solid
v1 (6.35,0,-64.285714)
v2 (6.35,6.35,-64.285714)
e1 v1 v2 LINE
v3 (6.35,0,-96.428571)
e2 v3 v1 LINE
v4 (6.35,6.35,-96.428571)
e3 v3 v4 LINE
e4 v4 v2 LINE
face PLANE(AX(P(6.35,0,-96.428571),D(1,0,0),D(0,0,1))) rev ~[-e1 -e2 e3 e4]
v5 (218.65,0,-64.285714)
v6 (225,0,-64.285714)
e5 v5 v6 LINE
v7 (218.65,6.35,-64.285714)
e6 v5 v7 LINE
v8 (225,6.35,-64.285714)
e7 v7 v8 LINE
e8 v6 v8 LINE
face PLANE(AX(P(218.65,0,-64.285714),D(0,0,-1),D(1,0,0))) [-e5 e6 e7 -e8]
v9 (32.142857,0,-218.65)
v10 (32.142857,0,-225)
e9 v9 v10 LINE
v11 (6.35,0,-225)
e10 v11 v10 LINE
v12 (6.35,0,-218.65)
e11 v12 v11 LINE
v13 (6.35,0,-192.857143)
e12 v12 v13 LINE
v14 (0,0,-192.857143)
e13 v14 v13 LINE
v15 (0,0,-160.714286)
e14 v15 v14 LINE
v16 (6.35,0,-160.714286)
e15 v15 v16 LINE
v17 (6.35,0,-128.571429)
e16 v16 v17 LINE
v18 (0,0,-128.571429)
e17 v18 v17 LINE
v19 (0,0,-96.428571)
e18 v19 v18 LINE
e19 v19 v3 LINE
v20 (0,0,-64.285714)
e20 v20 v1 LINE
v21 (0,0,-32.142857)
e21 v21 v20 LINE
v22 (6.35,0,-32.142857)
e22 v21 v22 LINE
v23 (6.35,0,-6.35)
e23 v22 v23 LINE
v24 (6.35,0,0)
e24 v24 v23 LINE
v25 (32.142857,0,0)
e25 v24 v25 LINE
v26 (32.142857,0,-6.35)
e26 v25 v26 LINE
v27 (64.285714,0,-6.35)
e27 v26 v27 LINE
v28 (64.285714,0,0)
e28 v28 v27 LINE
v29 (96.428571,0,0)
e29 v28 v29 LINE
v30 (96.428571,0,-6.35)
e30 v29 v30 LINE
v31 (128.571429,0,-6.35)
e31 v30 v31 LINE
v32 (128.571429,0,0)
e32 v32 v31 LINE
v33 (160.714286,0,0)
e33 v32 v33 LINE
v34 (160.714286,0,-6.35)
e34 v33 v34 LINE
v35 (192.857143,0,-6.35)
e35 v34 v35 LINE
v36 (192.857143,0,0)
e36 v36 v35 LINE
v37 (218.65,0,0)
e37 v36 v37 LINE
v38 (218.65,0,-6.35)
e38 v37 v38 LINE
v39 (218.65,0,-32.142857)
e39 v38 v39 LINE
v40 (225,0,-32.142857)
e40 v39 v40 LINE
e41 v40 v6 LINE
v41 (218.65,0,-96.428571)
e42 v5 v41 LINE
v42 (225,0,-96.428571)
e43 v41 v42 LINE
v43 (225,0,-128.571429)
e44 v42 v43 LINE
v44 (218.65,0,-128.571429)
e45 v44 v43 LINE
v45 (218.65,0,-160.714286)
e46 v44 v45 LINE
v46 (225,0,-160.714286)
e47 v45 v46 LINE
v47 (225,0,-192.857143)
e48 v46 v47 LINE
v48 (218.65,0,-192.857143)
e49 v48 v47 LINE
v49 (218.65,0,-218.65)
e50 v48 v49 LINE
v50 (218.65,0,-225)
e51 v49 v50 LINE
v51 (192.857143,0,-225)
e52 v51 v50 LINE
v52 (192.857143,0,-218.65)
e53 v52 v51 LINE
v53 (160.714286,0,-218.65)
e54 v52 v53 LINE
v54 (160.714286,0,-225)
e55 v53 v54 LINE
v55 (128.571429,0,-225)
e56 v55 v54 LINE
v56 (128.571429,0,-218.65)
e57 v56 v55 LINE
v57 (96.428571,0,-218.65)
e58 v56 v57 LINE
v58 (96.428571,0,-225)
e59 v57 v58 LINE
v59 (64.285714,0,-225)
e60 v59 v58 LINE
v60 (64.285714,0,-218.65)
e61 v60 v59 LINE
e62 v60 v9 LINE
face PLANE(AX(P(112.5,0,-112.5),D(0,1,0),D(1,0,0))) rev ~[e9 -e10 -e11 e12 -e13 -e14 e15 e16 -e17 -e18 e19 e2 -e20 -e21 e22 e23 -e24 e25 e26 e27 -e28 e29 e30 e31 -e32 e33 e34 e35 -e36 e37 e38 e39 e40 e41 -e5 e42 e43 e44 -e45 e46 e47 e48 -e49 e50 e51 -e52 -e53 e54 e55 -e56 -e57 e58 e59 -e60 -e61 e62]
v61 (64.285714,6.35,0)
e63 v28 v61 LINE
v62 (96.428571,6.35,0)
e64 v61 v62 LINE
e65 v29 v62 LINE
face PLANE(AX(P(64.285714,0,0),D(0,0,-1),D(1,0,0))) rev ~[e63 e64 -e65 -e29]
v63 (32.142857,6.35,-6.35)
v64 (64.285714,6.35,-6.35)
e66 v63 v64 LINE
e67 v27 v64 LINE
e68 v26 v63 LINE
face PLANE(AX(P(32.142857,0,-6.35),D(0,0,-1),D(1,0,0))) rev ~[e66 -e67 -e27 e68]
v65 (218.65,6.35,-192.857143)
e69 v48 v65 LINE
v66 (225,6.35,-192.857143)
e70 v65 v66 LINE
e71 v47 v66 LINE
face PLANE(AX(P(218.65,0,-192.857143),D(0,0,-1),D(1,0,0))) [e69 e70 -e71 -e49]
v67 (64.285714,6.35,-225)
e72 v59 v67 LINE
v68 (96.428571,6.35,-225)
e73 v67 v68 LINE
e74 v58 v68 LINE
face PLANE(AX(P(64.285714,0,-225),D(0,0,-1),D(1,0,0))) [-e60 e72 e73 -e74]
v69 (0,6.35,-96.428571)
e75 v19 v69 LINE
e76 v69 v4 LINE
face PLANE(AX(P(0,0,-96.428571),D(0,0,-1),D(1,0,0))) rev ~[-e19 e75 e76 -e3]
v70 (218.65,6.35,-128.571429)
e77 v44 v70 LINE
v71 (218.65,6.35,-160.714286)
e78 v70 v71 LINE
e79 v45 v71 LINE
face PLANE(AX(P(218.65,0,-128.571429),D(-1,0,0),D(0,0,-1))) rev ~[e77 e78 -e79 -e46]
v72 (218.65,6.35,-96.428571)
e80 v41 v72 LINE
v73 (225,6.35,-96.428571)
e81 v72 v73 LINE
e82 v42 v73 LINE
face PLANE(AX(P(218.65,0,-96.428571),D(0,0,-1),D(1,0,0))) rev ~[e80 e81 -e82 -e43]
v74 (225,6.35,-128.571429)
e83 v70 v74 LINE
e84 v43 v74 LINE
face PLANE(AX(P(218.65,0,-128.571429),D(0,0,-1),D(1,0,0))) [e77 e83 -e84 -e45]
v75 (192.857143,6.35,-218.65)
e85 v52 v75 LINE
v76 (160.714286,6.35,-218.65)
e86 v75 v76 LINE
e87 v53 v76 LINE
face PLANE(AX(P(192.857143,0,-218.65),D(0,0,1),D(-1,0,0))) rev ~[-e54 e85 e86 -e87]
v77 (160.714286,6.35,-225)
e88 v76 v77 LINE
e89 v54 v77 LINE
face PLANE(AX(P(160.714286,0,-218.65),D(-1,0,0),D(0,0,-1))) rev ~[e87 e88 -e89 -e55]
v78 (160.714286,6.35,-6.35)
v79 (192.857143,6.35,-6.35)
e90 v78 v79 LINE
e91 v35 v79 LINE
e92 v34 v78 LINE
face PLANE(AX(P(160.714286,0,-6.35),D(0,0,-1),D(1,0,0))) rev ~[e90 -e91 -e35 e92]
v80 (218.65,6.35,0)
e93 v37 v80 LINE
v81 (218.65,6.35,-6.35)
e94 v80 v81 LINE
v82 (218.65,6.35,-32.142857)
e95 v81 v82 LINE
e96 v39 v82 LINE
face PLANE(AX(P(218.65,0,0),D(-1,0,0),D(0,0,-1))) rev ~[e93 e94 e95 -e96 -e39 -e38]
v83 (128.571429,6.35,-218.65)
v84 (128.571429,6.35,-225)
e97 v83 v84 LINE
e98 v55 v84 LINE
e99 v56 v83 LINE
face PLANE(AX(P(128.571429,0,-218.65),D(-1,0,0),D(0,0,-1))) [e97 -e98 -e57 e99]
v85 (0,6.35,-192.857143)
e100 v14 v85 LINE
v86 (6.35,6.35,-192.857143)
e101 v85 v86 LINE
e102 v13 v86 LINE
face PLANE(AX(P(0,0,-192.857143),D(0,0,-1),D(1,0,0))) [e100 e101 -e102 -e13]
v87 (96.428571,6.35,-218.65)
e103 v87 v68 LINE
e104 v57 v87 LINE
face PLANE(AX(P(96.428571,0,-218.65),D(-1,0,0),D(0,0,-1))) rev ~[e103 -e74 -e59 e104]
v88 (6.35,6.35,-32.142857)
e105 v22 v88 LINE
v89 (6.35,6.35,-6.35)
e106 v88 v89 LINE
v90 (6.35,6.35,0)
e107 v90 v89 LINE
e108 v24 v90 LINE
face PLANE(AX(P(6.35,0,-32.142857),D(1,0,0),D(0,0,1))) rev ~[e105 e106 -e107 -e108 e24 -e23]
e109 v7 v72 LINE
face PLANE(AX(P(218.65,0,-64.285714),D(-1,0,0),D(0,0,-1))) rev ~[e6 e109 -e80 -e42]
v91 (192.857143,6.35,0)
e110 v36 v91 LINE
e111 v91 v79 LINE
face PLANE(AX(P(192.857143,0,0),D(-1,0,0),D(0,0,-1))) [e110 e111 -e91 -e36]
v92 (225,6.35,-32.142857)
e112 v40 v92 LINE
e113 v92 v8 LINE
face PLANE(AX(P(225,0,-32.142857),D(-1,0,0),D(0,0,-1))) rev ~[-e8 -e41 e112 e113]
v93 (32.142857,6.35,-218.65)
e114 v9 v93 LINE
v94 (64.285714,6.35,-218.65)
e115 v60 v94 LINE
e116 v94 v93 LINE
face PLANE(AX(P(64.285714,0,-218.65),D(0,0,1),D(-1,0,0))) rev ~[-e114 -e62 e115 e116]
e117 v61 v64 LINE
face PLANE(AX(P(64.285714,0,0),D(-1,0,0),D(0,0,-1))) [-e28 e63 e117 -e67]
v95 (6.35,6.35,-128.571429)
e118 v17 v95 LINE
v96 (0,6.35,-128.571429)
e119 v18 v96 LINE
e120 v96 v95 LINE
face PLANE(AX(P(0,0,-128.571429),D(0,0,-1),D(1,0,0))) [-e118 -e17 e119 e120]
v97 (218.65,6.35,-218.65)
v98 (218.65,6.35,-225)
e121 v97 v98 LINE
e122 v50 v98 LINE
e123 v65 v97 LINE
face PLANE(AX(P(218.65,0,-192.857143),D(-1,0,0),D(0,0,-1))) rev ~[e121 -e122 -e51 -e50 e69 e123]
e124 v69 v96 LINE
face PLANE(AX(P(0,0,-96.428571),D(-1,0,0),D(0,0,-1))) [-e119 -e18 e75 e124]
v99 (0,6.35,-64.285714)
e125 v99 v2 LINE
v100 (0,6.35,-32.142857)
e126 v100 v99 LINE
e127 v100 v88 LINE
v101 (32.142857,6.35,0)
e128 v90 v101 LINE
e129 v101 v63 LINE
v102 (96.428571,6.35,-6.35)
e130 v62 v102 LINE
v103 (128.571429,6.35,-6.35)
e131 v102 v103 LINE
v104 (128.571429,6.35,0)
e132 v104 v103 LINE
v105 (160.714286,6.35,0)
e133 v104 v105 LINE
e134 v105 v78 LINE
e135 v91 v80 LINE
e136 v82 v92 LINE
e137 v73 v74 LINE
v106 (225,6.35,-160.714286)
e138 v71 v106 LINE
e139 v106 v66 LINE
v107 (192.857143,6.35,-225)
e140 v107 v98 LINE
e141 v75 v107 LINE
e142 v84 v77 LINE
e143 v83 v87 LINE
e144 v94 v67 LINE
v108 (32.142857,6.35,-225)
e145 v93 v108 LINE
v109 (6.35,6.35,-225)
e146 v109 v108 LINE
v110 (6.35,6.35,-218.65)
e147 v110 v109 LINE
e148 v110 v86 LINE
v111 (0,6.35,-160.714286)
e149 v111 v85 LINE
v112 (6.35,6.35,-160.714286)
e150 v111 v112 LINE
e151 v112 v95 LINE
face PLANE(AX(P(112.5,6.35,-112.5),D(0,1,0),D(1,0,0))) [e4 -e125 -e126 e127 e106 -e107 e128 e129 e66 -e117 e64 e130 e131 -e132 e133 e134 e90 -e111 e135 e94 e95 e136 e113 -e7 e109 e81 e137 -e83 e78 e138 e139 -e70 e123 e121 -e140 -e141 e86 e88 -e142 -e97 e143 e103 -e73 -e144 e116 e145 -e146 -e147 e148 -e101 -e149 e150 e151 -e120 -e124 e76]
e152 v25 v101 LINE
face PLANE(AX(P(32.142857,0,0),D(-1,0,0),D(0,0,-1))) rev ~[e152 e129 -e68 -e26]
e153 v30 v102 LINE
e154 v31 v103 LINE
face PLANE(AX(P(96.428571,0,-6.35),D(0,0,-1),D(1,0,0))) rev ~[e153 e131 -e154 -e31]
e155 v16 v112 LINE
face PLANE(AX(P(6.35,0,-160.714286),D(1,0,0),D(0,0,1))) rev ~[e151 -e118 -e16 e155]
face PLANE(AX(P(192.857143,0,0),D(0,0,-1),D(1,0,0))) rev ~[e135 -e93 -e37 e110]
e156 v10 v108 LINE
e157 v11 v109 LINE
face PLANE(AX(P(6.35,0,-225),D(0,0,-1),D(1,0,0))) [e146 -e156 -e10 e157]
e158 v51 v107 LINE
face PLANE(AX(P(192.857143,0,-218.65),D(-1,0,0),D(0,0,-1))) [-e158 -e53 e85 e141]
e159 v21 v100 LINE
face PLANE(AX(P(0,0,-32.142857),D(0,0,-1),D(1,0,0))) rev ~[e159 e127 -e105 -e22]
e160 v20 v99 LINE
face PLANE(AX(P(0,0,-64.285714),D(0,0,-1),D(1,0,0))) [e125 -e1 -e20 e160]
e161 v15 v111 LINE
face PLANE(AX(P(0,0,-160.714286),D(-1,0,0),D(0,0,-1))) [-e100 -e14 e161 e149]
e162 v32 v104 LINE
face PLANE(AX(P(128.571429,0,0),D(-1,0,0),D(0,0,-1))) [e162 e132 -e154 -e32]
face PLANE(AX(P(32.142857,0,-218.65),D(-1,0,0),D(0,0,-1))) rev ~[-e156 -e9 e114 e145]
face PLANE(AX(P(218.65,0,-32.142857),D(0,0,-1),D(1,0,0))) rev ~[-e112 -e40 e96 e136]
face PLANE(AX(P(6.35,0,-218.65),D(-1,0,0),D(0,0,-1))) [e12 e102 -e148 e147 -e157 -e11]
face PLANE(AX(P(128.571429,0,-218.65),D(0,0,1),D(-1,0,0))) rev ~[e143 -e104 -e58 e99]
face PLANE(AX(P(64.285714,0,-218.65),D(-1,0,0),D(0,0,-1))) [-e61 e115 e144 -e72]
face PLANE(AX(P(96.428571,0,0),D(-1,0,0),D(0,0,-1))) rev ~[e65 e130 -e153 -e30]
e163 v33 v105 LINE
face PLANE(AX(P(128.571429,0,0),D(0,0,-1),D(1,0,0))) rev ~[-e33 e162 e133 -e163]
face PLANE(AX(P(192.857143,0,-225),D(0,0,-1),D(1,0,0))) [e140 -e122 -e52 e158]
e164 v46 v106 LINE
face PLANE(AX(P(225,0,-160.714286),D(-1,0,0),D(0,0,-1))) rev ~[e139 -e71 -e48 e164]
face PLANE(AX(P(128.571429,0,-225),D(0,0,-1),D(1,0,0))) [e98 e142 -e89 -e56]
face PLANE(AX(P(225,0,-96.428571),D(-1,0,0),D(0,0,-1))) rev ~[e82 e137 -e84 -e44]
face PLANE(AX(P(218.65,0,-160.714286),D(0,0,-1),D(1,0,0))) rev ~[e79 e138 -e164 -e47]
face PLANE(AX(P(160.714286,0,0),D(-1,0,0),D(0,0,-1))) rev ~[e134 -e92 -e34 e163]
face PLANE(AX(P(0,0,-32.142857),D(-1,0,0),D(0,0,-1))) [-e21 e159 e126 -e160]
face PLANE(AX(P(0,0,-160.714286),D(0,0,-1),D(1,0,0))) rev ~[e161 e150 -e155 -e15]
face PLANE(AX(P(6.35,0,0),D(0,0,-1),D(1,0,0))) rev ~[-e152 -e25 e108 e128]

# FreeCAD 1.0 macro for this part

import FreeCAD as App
import Part
import Sketcher
from FreeCAD import Vector
Q = App.Units.Quantity


def add_polygon(sketch, points):
    """Adds a closed chain of lines whose ends are joined by coincident constraints."""
    first, n = sketch.GeometryCount, len(points)
    for a, b in zip(points, points[1:] + points[:1]):
        sketch.addGeometry(Part.LineSegment(App.Vector(*a, 0), App.Vector(*b, 0)), False)
    for i in range(n):
        sketch.addConstraint(Sketcher.Constraint("Coincident", first + i, 2, first + (i + 1) % n, 1))

doc = App.newDocument("Part")
params = doc.addObject("Spreadsheet::Sheet", "Params")
for row, (alias, value) in enumerate([
    ("sketch1_width", "0.25 in"),
    ("pad1_length", "0.25 in"),
], start=1):
    params.set(f"A{row}", alias)
    params.set(f"B{row}", "=" + value)
    params.setAlias(f"B{row}", alias)

body = doc.addObject("PartDesign::Body", "Body")

# Sketch on XZ plane
sketch1 = doc.addObject("Sketcher::SketchObject", "Sketch")
body.addObject(sketch1)
sketch1.AttachmentSupport = (doc.XZ_Plane, [""])
sketch1.MapMode = "FlatFace"
add_polygon(sketch1, [(32, -6), (64, -6), (64, 0), (96, 0), (96, -6), (129, -6), (129, 0), (161, 0), (161, -6), (193, -6), (193, 0), (219, 0), (219, -6), (219, -32), (225, -32), (225, -64), (219, -64), (219, -96), (225, -96), (225, -129), (219, -129), (219, -161), (225, -161), (225, -193), (219, -193), (219, -219), (219, -225), (193, -225), (193, -219), (161, -219), (161, -225), (129, -225), (129, -219), (96, -219), (96, -225), (64, -225), (64, -219), (32, -219), (32, -225), (6, -225), (6, -219), (6, -193), (0, -193), (0, -161), (6, -161), (6, -129), (0, -129), (0, -96), (6, -96), (6, -64), (0, -64), (0, -32), (6, -32), (6, -6), (6, 0), (32, 0)])  # lines 0-55
sketch1.addConstraint(Sketcher.Constraint("Horizontal", 0))
sketch1.addConstraint(Sketcher.Constraint("Vertical", 1))
sketch1.addConstraint(Sketcher.Constraint("Horizontal", 2))
sketch1.addConstraint(Sketcher.Constraint("Vertical", 3))
sketch1.addConstraint(Sketcher.Constraint("Horizontal", 4))
sketch1.addConstraint(Sketcher.Constraint("Vertical", 5))
sketch1.addConstraint(Sketcher.Constraint("Horizontal", 6))
sketch1.addConstraint(Sketcher.Constraint("Vertical", 7))
sketch1.addConstraint(Sketcher.Constraint("Horizontal", 8))
sketch1.addConstraint(Sketcher.Constraint("Vertical", 9))
sketch1.addConstraint(Sketcher.Constraint("Horizontal", 10))
sketch1.addConstraint(Sketcher.Constraint("Vertical", 11))
sketch1.addConstraint(Sketcher.Constraint("Vertical", 12))
sketch1.addConstraint(Sketcher.Constraint("Horizontal", 13))
sketch1.addConstraint(Sketcher.Constraint("Vertical", 14))
sketch1.addConstraint(Sketcher.Constraint("Horizontal", 15))
sketch1.addConstraint(Sketcher.Constraint("Vertical", 16))
sketch1.addConstraint(Sketcher.Constraint("Horizontal", 17))
sketch1.addConstraint(Sketcher.Constraint("Vertical", 18))
sketch1.addConstraint(Sketcher.Constraint("Horizontal", 19))
sketch1.addConstraint(Sketcher.Constraint("Vertical", 20))
sketch1.addConstraint(Sketcher.Constraint("Horizontal", 21))
sketch1.addConstraint(Sketcher.Constraint("Vertical", 22))
sketch1.addConstraint(Sketcher.Constraint("Horizontal", 23))
sketch1.addConstraint(Sketcher.Constraint("Vertical", 24))
sketch1.addConstraint(Sketcher.Constraint("Vertical", 25))
sketch1.addConstraint(Sketcher.Constraint("Horizontal", 26))
sketch1.addConstraint(Sketcher.Constraint("Vertical", 27))
sketch1.addConstraint(Sketcher.Constraint("Horizontal", 28))
sketch1.addConstraint(Sketcher.Constraint("Vertical", 29))
sketch1.addConstraint(Sketcher.Constraint("Horizontal", 30))
sketch1.addConstraint(Sketcher.Constraint("Vertical", 31))
sketch1.addConstraint(Sketcher.Constraint("Horizontal", 32))
sketch1.addConstraint(Sketcher.Constraint("Vertical", 33))
sketch1.addConstraint(Sketcher.Constraint("Horizontal", 34))
sketch1.addConstraint(Sketcher.Constraint("Vertical", 35))
sketch1.addConstraint(Sketcher.Constraint("Horizontal", 36))
sketch1.addConstraint(Sketcher.Constraint("Vertical", 37))
sketch1.addConstraint(Sketcher.Constraint("Horizontal", 38))
sketch1.addConstraint(Sketcher.Constraint("Vertical", 39))
sketch1.addConstraint(Sketcher.Constraint("Vertical", 40))
sketch1.addConstraint(Sketcher.Constraint("Horizontal", 41))
sketch1.addConstraint(Sketcher.Constraint("Vertical", 42))
sketch1.addConstraint(Sketcher.Constraint("Horizontal", 43))
sketch1.addConstraint(Sketcher.Constraint("Vertical", 44))
sketch1.addConstraint(Sketcher.Constraint("Horizontal", 45))
sketch1.addConstraint(Sketcher.Constraint("Vertical", 46))
sketch1.addConstraint(Sketcher.Constraint("Horizontal", 47))
sketch1.addConstraint(Sketcher.Constraint("Vertical", 48))
sketch1.addConstraint(Sketcher.Constraint("Horizontal", 49))
sketch1.addConstraint(Sketcher.Constraint("Vertical", 50))
sketch1.addConstraint(Sketcher.Constraint("Horizontal", 51))
sketch1.addConstraint(Sketcher.Constraint("Vertical", 52))
sketch1.addConstraint(Sketcher.Constraint("Vertical", 53))
sketch1.addConstraint(Sketcher.Constraint("Horizontal", 54))
sketch1.addConstraint(Sketcher.Constraint("Vertical", 55))
sketch1.addConstraint(Sketcher.Constraint("PointOnObject", 1, 2, -1))
sketch1.addConstraint(Sketcher.Constraint("PointOnObject", 5, 2, -1))
sketch1.addConstraint(Sketcher.Constraint("PointOnObject", 9, 2, -1))
sketch1.addConstraint(Sketcher.Constraint("PointOnObject", 41, 2, -2))
sketch1.addConstraint(Sketcher.Constraint("PointOnObject", 45, 2, -2))
sketch1.addConstraint(Sketcher.Constraint("PointOnObject", 49, 2, -2))
sketch1.addConstraint(Sketcher.Constraint("PointOnObject", 53, 2, -1))
sketch1.addConstraint(Sketcher.Constraint("Horizontal", 0, 2, 3, 2))
sketch1.addConstraint(Sketcher.Constraint("Horizontal", 4, 2, 7, 2))
sketch1.addConstraint(Sketcher.Constraint("Horizontal", 8, 2, 11, 2))
sketch1.addConstraint(Sketcher.Constraint("Horizontal", 24, 2, 27, 2))
sketch1.addConstraint(Sketcher.Constraint("Horizontal", 26, 2, 29, 2))
sketch1.addConstraint(Sketcher.Constraint("Horizontal", 28, 2, 31, 2))
sketch1.addConstraint(Sketcher.Constraint("Horizontal", 30, 2, 33, 2))
sketch1.addConstraint(Sketcher.Constraint("Horizontal", 32, 2, 35, 2))
sketch1.addConstraint(Sketcher.Constraint("Horizontal", 34, 2, 37, 2))
sketch1.addConstraint(Sketcher.Constraint("Horizontal", 36, 2, 39, 2))
sketch1.addConstraint(Sketcher.Constraint("Horizontal", 23, 2, 40, 2))
sketch1.addConstraint(Sketcher.Constraint("Horizontal", 21, 2, 42, 2))
sketch1.addConstraint(Sketcher.Constraint("Horizontal", 19, 2, 44, 2))
sketch1.addConstraint(Sketcher.Constraint("Horizontal", 17, 2, 46, 2))
sketch1.addConstraint(Sketcher.Constraint("Horizontal", 15, 2, 48, 2))
sketch1.addConstraint(Sketcher.Constraint("Horizontal", 13, 2, 50, 2))
sketch1.addConstraint(Sketcher.Constraint("Horizontal", 11, 2, 52, 2))
sketch1.addConstraint(Sketcher.Constraint("Vertical", 12, 2, 15, 2))
sketch1.addConstraint(Sketcher.Constraint("Vertical", 14, 2, 17, 2))
sketch1.addConstraint(Sketcher.Constraint("Vertical", 16, 2, 19, 2))
sketch1.addConstraint(Sketcher.Constraint("Vertical", 18, 2, 21, 2))
sketch1.addConstraint(Sketcher.Constraint("Vertical", 20, 2, 23, 2))
sketch1.addConstraint(Sketcher.Constraint("Vertical", 9, 2, 26, 2))
sketch1.addConstraint(Sketcher.Constraint("Vertical", 7, 2, 28, 2))
sketch1.addConstraint(Sketcher.Constraint("Vertical", 5, 2, 30, 2))
sketch1.addConstraint(Sketcher.Constraint("Vertical", 3, 2, 32, 2))
sketch1.addConstraint(Sketcher.Constraint("Vertical", 1, 2, 34, 2))
sketch1.addConstraint(Sketcher.Constraint("Vertical", 40, 2, 43, 2))
sketch1.addConstraint(Sketcher.Constraint("Vertical", 44, 2, 47, 2))
sketch1.addConstraint(Sketcher.Constraint("Vertical", 48, 2, 51, 2))
sketch1.addConstraint(Sketcher.Constraint("Vertical", 37, 2, 54, 2))
sketch1.addConstraint(Sketcher.Constraint("Equal", 0, 2))
sketch1.addConstraint(Sketcher.Constraint("Equal", 2, 4))
sketch1.addConstraint(Sketcher.Constraint("Equal", 4, 6))
sketch1.addConstraint(Sketcher.Constraint("Equal", 6, 8))
sketch1.addConstraint(Sketcher.Constraint("Equal", 26, 38))
sketch1.addConstraint(Sketcher.Constraint("Equal", 23, 41))
sketch1.addConstraint(Sketcher.Constraint("Equal", 51, 1))
sketch1.addConstraint(Sketcher.Constraint("Equal", 54, 12))
sketch1.addConstraint(Sketcher.Constraint("Equal", 36, 14))
sketch1.addConstraint(Sketcher.Constraint("Equal", 14, 16))
sketch1.addConstraint(Sketcher.Constraint("Equal", 16, 18))
sketch1.addConstraint(Sketcher.Constraint("Equal", 18, 20))
sketch1.addConstraint(Sketcher.Constraint("Equal", 20, 22))
sketch1.addConstraint(Sketcher.Constraint("Equal", 12, 24))
sketch1.addConstraint(Sketcher.Constraint("Equal", 11, 25))
sketch1.addConstraint(Sketcher.Constraint("DistanceX", 13, 1, 13, 2, Q("0.25 in")))
sketch1.addConstraint(Sketcher.Constraint("DistanceX", -1, 1, 10, 2, 218.65))
sketch1.addConstraint(Sketcher.Constraint("DistanceX", 0, 1, 0, 2, 32.142857))
sketch1.setExpression("Constraints[165]", "Params.sketch1_width")
pad1 = doc.addObject("PartDesign::Pad", "Pad")
body.addObject(pad1)
pad1.Profile = sketch1
pad1.setExpression("Length", "Params.pad1_length")
pad1.Reversed = True

doc.recompute()
